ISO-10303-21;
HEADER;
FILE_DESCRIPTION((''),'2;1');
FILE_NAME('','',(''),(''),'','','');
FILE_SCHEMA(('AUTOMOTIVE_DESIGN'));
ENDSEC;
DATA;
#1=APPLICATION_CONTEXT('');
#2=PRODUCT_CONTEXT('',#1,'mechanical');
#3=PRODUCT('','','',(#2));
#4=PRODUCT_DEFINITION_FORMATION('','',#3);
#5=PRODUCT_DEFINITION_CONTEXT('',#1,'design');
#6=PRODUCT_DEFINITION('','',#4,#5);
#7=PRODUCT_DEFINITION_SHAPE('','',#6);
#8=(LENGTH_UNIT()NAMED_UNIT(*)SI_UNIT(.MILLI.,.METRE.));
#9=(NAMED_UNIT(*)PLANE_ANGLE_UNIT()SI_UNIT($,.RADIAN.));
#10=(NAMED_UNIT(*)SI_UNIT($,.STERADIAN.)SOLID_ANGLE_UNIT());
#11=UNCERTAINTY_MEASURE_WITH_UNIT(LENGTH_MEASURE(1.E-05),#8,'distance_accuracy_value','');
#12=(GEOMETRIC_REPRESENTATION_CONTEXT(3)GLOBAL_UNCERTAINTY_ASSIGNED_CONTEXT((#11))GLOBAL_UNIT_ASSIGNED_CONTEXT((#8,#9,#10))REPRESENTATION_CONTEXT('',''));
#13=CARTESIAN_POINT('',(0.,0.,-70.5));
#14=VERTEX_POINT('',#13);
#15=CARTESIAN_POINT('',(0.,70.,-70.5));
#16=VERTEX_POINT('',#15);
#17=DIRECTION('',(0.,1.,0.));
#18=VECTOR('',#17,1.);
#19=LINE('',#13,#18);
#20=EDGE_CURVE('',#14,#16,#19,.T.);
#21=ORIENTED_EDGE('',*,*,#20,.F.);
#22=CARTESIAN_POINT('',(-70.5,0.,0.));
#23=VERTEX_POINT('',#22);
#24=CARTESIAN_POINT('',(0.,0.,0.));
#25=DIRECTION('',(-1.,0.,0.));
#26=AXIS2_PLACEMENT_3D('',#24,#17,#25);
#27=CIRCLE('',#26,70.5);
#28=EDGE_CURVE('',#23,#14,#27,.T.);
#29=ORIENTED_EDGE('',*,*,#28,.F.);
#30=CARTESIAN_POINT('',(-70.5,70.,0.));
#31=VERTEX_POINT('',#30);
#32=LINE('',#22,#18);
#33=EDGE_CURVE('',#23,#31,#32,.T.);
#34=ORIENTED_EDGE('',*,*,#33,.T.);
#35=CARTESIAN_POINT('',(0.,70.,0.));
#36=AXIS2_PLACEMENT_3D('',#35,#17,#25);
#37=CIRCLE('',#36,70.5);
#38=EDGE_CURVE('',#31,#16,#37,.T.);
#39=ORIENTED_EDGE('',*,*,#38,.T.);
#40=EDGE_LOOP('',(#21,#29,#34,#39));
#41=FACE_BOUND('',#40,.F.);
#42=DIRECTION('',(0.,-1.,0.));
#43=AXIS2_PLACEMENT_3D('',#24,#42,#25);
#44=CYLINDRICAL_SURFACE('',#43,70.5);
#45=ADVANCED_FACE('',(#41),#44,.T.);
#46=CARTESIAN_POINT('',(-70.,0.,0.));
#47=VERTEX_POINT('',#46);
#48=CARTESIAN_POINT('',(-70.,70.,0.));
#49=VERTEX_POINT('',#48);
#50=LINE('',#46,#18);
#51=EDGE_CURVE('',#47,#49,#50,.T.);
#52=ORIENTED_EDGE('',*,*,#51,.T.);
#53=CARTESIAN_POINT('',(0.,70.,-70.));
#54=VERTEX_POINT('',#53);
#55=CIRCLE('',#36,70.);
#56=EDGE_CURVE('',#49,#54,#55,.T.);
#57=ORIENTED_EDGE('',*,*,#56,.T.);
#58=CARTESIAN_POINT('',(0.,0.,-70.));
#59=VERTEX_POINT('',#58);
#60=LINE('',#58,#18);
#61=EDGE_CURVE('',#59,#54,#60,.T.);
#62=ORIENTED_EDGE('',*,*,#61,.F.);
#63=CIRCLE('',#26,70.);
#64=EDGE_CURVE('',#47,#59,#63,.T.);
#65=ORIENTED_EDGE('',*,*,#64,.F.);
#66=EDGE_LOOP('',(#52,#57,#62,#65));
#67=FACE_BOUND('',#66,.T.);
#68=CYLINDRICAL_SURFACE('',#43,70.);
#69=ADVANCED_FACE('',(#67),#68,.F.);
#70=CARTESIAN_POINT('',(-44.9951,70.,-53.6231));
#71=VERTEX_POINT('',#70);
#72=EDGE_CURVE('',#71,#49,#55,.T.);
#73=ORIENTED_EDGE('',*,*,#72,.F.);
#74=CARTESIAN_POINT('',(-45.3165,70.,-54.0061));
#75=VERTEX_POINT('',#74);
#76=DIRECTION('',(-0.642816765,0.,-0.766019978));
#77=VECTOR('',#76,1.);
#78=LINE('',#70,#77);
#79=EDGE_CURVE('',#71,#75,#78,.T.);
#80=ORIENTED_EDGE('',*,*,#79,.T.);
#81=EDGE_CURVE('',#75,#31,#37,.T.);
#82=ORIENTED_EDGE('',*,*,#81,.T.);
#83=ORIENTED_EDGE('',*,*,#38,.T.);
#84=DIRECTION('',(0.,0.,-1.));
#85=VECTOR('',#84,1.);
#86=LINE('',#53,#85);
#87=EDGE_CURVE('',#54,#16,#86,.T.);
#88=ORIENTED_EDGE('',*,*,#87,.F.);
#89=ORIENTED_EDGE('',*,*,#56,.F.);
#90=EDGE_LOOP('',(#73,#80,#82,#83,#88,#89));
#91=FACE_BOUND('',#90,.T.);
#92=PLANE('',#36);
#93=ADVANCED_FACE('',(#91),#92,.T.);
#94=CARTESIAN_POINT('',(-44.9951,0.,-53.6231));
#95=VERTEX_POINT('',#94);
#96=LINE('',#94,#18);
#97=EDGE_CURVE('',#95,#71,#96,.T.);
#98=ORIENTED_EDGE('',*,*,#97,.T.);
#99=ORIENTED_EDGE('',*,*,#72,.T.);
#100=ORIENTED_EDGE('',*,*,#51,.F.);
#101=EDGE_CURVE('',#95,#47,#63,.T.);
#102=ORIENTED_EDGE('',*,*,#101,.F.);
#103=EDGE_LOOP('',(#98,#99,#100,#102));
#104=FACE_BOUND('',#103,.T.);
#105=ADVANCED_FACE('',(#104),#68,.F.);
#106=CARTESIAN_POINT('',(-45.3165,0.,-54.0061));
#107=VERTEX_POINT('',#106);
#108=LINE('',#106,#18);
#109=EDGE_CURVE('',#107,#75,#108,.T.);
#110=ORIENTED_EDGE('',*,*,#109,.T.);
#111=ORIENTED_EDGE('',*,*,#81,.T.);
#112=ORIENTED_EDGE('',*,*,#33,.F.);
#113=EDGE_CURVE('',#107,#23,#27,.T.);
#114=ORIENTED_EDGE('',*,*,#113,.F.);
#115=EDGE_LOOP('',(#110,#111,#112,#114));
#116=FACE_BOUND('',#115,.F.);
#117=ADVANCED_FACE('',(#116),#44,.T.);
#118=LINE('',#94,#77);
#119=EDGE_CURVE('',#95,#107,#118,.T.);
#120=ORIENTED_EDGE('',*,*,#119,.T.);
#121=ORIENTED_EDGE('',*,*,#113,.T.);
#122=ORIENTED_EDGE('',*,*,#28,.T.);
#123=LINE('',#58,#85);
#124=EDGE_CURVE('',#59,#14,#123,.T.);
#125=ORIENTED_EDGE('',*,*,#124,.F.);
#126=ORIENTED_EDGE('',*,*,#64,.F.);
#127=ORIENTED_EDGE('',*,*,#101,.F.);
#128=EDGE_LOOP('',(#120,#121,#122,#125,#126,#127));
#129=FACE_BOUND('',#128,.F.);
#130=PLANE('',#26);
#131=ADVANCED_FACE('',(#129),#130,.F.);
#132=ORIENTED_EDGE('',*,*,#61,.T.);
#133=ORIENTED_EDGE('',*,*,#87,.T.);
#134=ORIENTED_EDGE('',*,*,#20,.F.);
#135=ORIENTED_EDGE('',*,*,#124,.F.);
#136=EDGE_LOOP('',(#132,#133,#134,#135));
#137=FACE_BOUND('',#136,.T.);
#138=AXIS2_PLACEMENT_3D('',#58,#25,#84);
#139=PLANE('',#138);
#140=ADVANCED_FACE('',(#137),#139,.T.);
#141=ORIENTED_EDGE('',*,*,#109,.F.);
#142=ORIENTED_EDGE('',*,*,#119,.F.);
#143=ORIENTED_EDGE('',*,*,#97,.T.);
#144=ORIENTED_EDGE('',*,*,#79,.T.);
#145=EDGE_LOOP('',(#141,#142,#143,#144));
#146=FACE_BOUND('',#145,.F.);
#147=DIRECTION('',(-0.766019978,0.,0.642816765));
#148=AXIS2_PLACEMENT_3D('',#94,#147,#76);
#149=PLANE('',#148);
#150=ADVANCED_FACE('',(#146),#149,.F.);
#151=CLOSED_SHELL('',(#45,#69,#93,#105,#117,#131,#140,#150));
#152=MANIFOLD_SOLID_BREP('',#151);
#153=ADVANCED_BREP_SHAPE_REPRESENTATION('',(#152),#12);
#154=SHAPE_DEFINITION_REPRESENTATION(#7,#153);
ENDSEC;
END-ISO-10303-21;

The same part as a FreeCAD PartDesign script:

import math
import FreeCAD as App
import Part
import Sketcher
from FreeCAD import Vector

doc = App.newDocument("Part")
body = doc.addObject("PartDesign::Body", "Body")

# Sketch on XZ plane
sketch1 = body.newObject("Sketcher::SketchObject", "Sketch")
sketch1.AttachmentSupport = (doc.getObject("XZ_Plane"), [""])
sketch1.MapMode = "FlatFace"
sketch1.addGeometry([
    Part.ArcOfCircle(Part.Circle(Vector(0, 0, 0), Vector(0, 0, 1), 70), math.radians(-90), math.radians(230)),
    Part.LineSegment(Vector(-45, -53.62, 0), Vector(-45.32, -54.01, 0)),
    Part.ArcOfCircle(Part.Circle(Vector(0, 0, 0), Vector(0, 0, 1), 70.5), math.radians(-90), math.radians(230)),
    Part.LineSegment(Vector(0, -70.5, 0), Vector(0, -70, 0)),
], False)
sketch1.addConstraint([
    Sketcher.Constraint("Coincident", 0, 2, 1, 1),
    Sketcher.Constraint("Coincident", 1, 2, 2, 2),
    Sketcher.Constraint("Coincident", 2, 1, 3, 1),
    Sketcher.Constraint("Coincident", 3, 2, 0, 1),
    Sketcher.Constraint("Vertical", 3),
    Sketcher.Constraint("Coincident", 0, 3, -1, 1),
    Sketcher.Constraint("Coincident", 2, 3, -1, 1),
    Sketcher.Constraint("PointOnObject", 2, 1, -2),
    Sketcher.Constraint("Radius", 0, 70.0),
    Sketcher.Constraint("Radius", 2, 70.5),
    Sketcher.Constraint("DistanceX", 0, 2, -1, 1, 44.995),
    Sketcher.Constraint("DistanceY", 1, 2, -1, 1, 54.006),
])
pad1 = body.newObject("PartDesign::Pad", "Pad")
pad1.Profile = sketch1
pad1.Length = 70
pad1.Reversed = True

doc.recompute()
